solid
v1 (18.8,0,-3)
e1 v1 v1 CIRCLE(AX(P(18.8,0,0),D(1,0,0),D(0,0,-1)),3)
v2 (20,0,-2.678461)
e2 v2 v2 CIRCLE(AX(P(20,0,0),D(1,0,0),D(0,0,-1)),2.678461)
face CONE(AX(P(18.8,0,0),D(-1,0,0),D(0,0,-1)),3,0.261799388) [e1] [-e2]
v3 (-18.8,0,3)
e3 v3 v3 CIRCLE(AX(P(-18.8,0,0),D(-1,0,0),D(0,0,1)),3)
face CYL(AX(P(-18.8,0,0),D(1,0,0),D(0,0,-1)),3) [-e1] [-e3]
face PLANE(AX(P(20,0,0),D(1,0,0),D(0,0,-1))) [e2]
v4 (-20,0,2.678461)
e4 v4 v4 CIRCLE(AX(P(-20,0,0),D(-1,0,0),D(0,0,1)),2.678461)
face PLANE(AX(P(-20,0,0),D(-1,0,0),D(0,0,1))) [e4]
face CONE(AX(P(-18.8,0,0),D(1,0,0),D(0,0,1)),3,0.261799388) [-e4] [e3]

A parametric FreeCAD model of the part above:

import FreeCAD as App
import Part
import Sketcher
Q = App.Units.Quantity

doc = App.newDocument("Part")
body = doc.addObject("PartDesign::Body", "Body")

# Sketch on YZ plane
sketch1 = body.newObject("Sketcher::SketchObject", "Sketch")
sketch1.AttachmentSupport = (doc.getObject("YZ_Plane"), [""])
sketch1.MapMode = "FlatFace"
sketch1.addGeometry(Part.Circle(App.Vector(0, 0, 0), App.Vector(0, 0, 1), 3), False)
sketch1.addConstraint(Sketcher.Constraint("Coincident", 0, 3, -1, 1))
sketch1.addConstraint(Sketcher.Constraint("Diameter", 0, Q("6 mm")))
pad1 = body.newObject("PartDesign::Pad", "Pad")
pad1.Profile = sketch1
pad1.Type = "TwoLengths"
pad1.Length = 18.8
pad1.Length2 = 18.8

# Sketch on YZ plane
sketch2 = body.newObject("Sketcher::SketchObject", "Sketch001")
sketch2.AttachmentSupport = (doc.getObject("YZ_Plane"), [""])
sketch2.MapMode = "FlatFace"
sketch2.AttachmentOffset = App.Placement(App.Vector(0, 0, 18.8), App.Rotation())
sketch2.addGeometry(Part.Circle(App.Vector(0, 0, 0), App.Vector(0, 0, 1), 3), False)
sketch2.addConstraint(Sketcher.Constraint("Coincident", 0, 3, -1, 1))
sketch2.addConstraint(Sketcher.Constraint("Diameter", 0, Q("6 mm")))
pad2 = body.newObject("PartDesign::Pad", "Pad001")
pad2.Profile = sketch2
pad2.Length = 1.2
pad2.TaperAngle = -15

# Sketch on YZ plane
sketch3 = body.newObject("Sketcher::SketchObject", "Sketch002")
sketch3.AttachmentSupport = (doc.getObject("YZ_Plane"), [""])
sketch3.MapMode = "FlatFace"
sketch3.AttachmentOffset = App.Placement(App.Vector(0, 0, -18.8), App.Rotation())
sketch3.addGeometry(Part.Circle(App.Vector(0, 0, 0), App.Vector(0, 0, 1), 3), False)
sketch3.addConstraint(Sketcher.Constraint("Coincident", 0, 3, -1, 1))
sketch3.addConstraint(Sketcher.Constraint("Diameter", 0, Q("6 mm")))
pad3 = body.newObject("PartDesign::Pad", "Pad002")
pad3.Profile = sketch3
pad3.Length = 1.2
pad3.Reversed = True
pad3.TaperAngle = -15

doc.recompute()
